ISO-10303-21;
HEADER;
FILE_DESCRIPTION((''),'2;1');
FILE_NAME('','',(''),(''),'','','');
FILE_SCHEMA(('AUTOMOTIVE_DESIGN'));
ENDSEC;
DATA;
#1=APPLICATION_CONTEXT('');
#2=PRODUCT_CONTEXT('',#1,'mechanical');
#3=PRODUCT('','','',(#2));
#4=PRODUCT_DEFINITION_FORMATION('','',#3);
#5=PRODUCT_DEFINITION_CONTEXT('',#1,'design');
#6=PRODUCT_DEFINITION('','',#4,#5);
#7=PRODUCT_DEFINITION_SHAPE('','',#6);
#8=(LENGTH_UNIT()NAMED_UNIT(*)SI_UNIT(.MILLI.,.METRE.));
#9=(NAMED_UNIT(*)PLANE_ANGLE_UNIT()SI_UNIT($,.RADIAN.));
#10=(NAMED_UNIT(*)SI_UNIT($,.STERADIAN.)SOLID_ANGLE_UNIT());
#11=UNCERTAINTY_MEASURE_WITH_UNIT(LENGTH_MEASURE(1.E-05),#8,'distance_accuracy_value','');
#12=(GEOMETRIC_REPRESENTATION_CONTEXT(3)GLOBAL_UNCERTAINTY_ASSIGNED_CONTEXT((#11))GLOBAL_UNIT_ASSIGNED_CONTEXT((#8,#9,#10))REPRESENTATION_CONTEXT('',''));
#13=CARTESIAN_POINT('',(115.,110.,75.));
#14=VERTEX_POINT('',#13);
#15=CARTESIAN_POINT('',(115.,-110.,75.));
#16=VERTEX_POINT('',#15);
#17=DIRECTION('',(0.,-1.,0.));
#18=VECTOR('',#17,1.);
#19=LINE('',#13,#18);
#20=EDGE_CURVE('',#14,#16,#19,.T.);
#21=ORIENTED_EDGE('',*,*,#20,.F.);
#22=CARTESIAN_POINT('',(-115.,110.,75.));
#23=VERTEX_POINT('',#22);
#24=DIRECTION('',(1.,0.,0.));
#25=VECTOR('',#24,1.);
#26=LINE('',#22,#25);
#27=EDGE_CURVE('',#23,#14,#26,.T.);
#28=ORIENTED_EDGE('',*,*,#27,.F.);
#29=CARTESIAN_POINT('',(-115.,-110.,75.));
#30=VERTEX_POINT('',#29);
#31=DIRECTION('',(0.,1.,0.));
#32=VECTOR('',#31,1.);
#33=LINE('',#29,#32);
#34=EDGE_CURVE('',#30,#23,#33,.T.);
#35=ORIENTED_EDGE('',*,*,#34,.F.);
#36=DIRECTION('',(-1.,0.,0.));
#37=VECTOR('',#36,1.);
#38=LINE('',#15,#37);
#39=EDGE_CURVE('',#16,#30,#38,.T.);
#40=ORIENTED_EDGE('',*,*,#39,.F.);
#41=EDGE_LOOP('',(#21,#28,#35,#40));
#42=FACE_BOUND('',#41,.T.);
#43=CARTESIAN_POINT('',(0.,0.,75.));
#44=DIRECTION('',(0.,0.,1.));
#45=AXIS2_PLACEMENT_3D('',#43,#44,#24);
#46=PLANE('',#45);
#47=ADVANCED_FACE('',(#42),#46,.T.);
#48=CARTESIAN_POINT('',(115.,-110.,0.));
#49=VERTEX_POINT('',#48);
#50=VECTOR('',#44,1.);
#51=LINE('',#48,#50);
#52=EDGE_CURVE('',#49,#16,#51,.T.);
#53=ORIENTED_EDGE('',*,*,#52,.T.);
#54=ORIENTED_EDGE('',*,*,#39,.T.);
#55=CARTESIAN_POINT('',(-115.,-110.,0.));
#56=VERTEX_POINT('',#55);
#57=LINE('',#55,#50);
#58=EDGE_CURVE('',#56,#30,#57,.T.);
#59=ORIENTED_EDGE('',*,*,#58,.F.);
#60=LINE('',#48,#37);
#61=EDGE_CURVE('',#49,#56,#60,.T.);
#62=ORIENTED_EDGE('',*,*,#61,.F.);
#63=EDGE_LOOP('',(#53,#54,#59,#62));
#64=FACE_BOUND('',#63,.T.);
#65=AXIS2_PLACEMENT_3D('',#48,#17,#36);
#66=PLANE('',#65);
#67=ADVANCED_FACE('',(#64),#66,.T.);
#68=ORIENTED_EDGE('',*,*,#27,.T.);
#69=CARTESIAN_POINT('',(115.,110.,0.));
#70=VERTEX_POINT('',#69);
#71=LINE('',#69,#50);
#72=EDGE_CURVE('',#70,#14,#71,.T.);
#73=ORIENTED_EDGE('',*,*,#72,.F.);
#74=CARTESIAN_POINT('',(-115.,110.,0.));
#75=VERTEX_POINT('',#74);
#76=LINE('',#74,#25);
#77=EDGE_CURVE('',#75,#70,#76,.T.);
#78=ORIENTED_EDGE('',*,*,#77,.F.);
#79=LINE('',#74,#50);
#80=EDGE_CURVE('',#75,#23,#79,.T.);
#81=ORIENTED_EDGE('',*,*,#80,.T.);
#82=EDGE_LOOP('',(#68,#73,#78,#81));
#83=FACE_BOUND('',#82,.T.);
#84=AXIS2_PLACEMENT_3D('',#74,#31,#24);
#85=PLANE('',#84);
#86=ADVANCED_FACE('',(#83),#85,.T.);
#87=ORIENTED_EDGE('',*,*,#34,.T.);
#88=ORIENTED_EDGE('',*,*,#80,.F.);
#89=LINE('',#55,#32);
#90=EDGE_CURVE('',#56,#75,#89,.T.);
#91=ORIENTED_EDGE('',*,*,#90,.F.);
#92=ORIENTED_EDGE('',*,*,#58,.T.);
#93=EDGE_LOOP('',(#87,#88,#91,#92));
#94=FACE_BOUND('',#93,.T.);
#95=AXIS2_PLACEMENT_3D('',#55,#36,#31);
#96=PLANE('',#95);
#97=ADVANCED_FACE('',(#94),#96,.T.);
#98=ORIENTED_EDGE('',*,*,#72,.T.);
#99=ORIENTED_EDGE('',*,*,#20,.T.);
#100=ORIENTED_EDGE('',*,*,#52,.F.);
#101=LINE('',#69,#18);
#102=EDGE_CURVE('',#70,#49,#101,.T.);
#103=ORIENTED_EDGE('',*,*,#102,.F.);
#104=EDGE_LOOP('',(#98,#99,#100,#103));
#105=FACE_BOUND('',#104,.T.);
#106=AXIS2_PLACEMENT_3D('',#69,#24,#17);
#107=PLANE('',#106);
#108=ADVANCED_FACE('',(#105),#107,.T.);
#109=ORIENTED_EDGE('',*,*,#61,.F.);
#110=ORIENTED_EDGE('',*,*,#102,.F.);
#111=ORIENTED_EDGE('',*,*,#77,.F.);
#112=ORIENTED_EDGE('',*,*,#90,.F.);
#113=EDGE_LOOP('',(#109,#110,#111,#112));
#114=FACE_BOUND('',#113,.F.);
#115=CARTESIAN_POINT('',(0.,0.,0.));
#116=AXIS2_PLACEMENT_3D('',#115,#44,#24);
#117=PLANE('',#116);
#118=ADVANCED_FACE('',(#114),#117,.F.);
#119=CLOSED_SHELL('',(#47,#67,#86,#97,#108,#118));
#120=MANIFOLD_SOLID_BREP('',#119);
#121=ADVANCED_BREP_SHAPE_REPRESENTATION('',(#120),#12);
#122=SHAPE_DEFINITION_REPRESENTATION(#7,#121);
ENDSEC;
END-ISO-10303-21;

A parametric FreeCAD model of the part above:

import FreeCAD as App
import Part
import Sketcher
from FreeCAD import Vector

doc = App.newDocument("Part")
params = doc.addObject("Spreadsheet::Sheet", "Params")
for row, (alias, value) in enumerate([
    ("sketch1_width", "230 mm"),
    ("sketch1_height", "220 mm"),
    ("pad1_length", "75 mm"),
], start=1):
    params.set(f"A{row}", alias)
    params.set(f"B{row}", "=" + value)
    params.setAlias(f"B{row}", alias)

body = doc.addObject("PartDesign::Body", "Body")

sketch1 = body.newObject("Sketcher::SketchObject", "Sketch")
sketch1.AttachmentSupport = (doc.getObject("XY_Plane"), [""])
sketch1.MapMode = "FlatFace"
sketch1.addGeometry([
    Part.LineSegment(Vector(-115, -110, 0), Vector(115, -110, 0)),
    Part.LineSegment(Vector(115, -110, 0), Vector(115, 110, 0)),
    Part.LineSegment(Vector(115, 110, 0), Vector(-115, 110, 0)),
    Part.LineSegment(Vector(-115, 110, 0), Vector(-115, -110, 0)),
], False)
sketch1.addConstraint([
    Sketcher.Constraint("Coincident", 0, 2, 1, 1),
    Sketcher.Constraint("Coincident", 1, 2, 2, 1),
    Sketcher.Constraint("Coincident", 2, 2, 3, 1),
    Sketcher.Constraint("Coincident", 3, 2, 0, 1),
    Sketcher.Constraint("Horizontal", 0),
    Sketcher.Constraint("Vertical", 1),
    Sketcher.Constraint("Horizontal", 2),
    Sketcher.Constraint("Vertical", 3),
    Sketcher.Constraint("Symmetric", 0, 2, 2, 2, -1, 1),
    Sketcher.Constraint("DistanceX", 0, 1, 0, 2, 230.0),
    Sketcher.Constraint("DistanceY", 1, 1, 1, 2, 220.0),
])
sketch1.setExpression("Constraints[9]", "Params.sketch1_width")
sketch1.setExpression("Constraints[10]", "Params.sketch1_height")
pad1 = body.newObject("PartDesign::Pad", "Pad")
pad1.Profile = sketch1
pad1.setExpression("Length", "Params.pad1_length")

doc.recompute()
